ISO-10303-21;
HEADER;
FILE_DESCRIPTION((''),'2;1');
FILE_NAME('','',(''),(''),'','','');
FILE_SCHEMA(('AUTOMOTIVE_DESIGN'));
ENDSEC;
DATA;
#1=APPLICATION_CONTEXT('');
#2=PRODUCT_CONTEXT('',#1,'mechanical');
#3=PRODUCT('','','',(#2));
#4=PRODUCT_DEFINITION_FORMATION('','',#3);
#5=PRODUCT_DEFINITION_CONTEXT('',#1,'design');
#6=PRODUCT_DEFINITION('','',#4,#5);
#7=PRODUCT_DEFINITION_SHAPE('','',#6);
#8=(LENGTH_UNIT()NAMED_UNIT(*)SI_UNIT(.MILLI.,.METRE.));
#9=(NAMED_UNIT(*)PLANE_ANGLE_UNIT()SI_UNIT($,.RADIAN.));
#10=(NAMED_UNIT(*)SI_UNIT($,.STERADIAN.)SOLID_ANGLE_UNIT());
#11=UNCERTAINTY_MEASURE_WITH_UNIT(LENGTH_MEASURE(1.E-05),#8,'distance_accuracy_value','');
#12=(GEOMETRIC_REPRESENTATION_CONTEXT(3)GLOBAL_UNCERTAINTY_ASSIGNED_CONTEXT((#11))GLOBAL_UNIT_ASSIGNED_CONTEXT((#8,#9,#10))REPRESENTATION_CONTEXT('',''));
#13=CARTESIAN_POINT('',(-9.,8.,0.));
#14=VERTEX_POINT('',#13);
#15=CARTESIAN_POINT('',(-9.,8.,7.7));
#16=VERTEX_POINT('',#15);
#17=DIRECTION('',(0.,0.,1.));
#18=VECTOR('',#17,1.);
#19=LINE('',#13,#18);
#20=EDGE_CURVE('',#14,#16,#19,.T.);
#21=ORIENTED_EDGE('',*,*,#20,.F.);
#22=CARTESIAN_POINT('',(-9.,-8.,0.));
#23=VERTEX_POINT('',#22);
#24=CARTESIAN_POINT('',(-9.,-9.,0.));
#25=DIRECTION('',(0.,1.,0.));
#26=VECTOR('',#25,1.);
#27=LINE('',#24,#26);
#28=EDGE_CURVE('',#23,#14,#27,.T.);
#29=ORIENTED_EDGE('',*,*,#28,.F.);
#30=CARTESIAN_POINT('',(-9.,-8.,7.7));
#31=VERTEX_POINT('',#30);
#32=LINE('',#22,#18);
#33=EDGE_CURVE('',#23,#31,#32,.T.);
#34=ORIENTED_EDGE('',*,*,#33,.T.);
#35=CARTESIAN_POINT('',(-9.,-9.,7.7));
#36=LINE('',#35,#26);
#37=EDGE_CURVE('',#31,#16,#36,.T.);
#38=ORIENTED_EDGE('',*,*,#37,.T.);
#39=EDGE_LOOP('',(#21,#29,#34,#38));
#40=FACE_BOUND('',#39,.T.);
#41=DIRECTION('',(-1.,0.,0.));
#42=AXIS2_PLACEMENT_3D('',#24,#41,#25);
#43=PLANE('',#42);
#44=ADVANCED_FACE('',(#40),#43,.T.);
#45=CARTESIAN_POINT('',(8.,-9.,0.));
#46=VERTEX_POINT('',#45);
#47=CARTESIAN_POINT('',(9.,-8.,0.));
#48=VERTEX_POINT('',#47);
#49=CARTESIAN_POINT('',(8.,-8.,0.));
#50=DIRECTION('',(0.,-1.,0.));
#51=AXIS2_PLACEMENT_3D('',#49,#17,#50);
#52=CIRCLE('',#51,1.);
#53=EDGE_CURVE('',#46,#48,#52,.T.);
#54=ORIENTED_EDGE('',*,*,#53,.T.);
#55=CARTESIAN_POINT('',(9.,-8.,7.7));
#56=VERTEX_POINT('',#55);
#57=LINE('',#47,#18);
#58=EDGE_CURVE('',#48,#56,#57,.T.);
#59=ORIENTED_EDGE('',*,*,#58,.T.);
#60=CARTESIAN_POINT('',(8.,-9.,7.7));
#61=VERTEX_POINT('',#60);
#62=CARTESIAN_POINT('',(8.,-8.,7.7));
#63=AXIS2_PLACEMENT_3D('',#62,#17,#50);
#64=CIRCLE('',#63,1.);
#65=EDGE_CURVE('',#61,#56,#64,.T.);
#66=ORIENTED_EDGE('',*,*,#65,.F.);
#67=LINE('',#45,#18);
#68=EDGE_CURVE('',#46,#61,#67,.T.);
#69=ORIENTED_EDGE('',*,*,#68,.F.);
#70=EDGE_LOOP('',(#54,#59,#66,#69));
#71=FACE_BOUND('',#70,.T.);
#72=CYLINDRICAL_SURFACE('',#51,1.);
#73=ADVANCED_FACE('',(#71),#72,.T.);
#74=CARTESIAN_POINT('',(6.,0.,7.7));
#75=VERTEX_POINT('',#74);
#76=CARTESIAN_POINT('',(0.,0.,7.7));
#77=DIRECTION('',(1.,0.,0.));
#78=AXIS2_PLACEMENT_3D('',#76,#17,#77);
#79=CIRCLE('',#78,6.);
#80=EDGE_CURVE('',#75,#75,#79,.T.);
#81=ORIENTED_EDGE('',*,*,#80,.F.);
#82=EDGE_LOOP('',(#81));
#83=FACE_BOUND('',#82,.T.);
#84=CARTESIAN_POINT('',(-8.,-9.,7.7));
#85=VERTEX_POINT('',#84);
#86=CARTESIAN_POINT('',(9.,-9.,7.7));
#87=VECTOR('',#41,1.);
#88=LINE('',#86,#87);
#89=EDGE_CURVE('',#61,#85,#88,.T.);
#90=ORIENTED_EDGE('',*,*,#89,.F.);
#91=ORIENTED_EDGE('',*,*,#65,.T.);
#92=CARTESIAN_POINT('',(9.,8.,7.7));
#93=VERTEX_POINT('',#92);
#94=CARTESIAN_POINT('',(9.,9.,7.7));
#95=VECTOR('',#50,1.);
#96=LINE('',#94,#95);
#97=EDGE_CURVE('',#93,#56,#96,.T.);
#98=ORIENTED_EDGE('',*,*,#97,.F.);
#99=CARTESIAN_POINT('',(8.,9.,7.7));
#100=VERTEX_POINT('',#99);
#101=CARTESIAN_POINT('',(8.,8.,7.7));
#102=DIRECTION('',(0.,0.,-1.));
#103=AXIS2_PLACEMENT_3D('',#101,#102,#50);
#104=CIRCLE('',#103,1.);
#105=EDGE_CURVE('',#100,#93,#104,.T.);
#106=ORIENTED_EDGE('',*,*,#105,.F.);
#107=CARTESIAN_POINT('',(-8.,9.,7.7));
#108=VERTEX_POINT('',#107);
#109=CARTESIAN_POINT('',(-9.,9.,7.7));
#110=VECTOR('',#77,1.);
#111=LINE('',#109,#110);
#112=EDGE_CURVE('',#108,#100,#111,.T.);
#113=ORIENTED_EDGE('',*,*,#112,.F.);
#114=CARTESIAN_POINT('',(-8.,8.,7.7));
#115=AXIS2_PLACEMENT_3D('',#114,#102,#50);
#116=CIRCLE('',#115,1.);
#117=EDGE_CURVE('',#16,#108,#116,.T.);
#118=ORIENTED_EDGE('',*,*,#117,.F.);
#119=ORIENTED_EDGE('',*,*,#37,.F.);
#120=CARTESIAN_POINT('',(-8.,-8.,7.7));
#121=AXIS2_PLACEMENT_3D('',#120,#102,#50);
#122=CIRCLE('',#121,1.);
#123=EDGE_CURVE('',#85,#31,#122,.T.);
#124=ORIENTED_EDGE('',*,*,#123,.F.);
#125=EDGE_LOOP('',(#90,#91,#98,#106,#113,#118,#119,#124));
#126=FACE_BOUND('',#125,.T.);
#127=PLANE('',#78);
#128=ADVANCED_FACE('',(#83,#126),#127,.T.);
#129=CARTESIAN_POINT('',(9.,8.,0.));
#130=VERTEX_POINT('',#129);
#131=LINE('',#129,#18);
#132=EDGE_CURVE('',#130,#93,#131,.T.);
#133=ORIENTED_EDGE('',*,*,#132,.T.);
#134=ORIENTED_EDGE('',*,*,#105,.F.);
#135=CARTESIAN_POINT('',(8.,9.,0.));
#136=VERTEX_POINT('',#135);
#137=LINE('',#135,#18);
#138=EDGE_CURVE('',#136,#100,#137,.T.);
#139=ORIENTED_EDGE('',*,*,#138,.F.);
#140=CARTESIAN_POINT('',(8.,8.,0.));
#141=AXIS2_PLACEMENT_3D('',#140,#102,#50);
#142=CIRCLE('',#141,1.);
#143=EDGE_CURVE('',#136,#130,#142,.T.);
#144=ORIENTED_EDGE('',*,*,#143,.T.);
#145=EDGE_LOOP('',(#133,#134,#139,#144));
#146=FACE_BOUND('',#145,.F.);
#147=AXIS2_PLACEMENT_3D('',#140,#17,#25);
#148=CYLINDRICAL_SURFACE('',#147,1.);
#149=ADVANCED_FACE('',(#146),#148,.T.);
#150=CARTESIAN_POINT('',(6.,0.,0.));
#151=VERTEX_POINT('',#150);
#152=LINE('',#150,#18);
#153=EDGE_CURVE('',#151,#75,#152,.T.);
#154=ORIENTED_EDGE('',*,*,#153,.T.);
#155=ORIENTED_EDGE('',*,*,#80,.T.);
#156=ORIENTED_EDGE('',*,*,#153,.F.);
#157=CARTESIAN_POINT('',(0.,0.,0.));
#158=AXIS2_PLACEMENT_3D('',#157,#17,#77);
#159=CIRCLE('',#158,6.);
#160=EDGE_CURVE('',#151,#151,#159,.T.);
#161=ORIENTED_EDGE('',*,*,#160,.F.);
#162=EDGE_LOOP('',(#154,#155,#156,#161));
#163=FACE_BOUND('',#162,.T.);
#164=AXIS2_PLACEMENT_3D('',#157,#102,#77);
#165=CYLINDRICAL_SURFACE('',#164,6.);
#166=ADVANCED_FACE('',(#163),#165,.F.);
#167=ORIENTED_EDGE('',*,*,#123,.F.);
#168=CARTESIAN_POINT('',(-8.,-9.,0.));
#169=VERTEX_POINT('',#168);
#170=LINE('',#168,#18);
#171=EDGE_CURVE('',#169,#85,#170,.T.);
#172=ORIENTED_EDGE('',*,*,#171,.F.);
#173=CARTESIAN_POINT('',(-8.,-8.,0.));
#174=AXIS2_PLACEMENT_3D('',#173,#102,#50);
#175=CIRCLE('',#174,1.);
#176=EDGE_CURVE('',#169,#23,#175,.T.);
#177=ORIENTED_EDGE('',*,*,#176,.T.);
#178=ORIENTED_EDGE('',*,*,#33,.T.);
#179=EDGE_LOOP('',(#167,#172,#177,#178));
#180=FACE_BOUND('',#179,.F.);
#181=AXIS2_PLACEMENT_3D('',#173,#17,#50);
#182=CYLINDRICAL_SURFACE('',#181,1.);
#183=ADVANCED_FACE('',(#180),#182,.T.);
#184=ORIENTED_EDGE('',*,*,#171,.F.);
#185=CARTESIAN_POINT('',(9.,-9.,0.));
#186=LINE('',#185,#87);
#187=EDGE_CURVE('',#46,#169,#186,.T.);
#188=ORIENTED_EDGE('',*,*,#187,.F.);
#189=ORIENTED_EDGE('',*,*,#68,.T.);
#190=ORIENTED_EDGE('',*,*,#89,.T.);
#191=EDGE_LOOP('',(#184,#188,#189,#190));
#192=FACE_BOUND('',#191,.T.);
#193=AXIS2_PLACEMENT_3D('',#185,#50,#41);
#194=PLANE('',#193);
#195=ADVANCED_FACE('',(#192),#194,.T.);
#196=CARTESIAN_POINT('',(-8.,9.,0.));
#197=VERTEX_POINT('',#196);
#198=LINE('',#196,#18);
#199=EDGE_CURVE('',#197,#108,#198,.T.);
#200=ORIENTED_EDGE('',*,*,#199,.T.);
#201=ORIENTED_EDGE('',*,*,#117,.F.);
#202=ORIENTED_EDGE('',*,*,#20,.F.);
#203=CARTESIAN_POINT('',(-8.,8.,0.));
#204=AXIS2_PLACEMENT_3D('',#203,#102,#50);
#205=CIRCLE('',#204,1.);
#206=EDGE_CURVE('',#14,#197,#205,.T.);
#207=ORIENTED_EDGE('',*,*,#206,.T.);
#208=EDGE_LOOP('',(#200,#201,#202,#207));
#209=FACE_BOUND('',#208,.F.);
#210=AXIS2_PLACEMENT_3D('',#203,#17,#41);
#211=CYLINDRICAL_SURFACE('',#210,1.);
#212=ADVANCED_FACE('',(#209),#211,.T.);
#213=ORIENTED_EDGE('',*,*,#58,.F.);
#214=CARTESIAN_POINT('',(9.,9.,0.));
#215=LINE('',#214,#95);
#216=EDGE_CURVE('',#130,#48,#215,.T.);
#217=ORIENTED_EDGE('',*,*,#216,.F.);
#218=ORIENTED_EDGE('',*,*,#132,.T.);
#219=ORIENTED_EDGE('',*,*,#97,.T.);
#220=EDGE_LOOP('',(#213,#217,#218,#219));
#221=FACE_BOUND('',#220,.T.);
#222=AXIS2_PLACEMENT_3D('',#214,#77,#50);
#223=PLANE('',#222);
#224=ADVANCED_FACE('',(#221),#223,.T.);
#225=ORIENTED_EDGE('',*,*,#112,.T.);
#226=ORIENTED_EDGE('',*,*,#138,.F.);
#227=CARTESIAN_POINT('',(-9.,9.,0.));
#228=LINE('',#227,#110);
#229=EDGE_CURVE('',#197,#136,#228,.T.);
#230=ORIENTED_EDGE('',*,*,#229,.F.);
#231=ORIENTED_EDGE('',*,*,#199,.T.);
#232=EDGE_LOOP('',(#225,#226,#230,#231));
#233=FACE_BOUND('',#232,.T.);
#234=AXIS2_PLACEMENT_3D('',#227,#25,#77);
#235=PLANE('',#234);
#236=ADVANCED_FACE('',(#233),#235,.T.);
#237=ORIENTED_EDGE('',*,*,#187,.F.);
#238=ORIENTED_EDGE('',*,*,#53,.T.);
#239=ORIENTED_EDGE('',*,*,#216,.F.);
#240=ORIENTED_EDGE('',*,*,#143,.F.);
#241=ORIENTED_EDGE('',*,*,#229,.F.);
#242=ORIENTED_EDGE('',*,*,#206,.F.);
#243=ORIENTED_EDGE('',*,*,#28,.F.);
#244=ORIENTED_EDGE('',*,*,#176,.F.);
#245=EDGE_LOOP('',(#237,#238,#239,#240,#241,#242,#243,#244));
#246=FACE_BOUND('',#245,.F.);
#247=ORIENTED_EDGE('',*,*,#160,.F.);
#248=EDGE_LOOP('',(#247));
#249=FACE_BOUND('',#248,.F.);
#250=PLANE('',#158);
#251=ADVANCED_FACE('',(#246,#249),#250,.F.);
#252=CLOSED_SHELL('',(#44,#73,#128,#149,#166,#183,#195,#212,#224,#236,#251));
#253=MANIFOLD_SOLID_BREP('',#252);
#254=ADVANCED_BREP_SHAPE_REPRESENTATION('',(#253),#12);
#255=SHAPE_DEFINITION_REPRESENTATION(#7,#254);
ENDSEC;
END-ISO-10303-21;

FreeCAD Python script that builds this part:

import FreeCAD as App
import Part
import Sketcher
Q = App.Units.Quantity


def edges_at(feature, points):
    """Names of the edges that pass closest to the given points."""
    edges = feature.Shape.Edges
    near = lambda p: min(range(len(edges)), key=lambda i: edges[i].distToShape(Part.Vertex(*p))[0])
    return sorted({f"Edge{near(p) + 1}" for p in points})

doc = App.newDocument("Part")
body = doc.addObject("PartDesign::Body", "Body")

# Sketch on XY plane
sketch1 = body.newObject("Sketcher::SketchObject", "Sketch")
sketch1.AttachmentSupport = (doc.getObject("XY_Plane"), [""])
sketch1.MapMode = "FlatFace"
sketch1.addGeometry(Part.LineSegment(App.Vector(-9, -9, 0), App.Vector(9, -9, 0)), False)
sketch1.addGeometry(Part.LineSegment(App.Vector(9, -9, 0), App.Vector(9, 9, 0)), False)
sketch1.addGeometry(Part.LineSegment(App.Vector(9, 9, 0), App.Vector(-9, 9, 0)), False)
sketch1.addGeometry(Part.LineSegment(App.Vector(-9, 9, 0), App.Vector(-9, -9, 0)), False)
sketch1.addGeometry(Part.Circle(App.Vector(0, 0, 0), App.Vector(0, 0, 1), 6), False)
sketch1.addConstraint(Sketcher.Constraint("Coincident", 0, 2, 1, 1))
sketch1.addConstraint(Sketcher.Constraint("Coincident", 1, 2, 2, 1))
sketch1.addConstraint(Sketcher.Constraint("Coincident", 2, 2, 3, 1))
sketch1.addConstraint(Sketcher.Constraint("Coincident", 3, 2, 0, 1))
sketch1.addConstraint(Sketcher.Constraint("Horizontal", 0))
sketch1.addConstraint(Sketcher.Constraint("Vertical", 1))
sketch1.addConstraint(Sketcher.Constraint("Horizontal", 2))
sketch1.addConstraint(Sketcher.Constraint("Vertical", 3))
sketch1.addConstraint(Sketcher.Constraint("Coincident", 4, 3, -1, 1))
sketch1.addConstraint(Sketcher.Constraint("Symmetric", 0, 2, 2, 2, -1, 1))
sketch1.addConstraint(Sketcher.Constraint("Equal", 2, 1))
sketch1.addConstraint(Sketcher.Constraint("Diameter", 4, Q("12 mm")))
sketch1.addConstraint(Sketcher.Constraint("DistanceX", 0, 1, 0, 2, Q("18 mm")))
pad1 = body.newObject("PartDesign::Pad", "Pad")
pad1.Profile = sketch1
pad1.Length = 7.7
doc.recompute()

fillet = body.newObject("PartDesign::Fillet", "Fillet")
fillet.Base = (pad1, edges_at(pad1, [
    (9, 9, 3.85),
    (-9, 9, 3.85),
    (9, -9, 3.85),
    (-9, -9, 3.85),
]))
fillet.Radius = 1

doc.recompute()
